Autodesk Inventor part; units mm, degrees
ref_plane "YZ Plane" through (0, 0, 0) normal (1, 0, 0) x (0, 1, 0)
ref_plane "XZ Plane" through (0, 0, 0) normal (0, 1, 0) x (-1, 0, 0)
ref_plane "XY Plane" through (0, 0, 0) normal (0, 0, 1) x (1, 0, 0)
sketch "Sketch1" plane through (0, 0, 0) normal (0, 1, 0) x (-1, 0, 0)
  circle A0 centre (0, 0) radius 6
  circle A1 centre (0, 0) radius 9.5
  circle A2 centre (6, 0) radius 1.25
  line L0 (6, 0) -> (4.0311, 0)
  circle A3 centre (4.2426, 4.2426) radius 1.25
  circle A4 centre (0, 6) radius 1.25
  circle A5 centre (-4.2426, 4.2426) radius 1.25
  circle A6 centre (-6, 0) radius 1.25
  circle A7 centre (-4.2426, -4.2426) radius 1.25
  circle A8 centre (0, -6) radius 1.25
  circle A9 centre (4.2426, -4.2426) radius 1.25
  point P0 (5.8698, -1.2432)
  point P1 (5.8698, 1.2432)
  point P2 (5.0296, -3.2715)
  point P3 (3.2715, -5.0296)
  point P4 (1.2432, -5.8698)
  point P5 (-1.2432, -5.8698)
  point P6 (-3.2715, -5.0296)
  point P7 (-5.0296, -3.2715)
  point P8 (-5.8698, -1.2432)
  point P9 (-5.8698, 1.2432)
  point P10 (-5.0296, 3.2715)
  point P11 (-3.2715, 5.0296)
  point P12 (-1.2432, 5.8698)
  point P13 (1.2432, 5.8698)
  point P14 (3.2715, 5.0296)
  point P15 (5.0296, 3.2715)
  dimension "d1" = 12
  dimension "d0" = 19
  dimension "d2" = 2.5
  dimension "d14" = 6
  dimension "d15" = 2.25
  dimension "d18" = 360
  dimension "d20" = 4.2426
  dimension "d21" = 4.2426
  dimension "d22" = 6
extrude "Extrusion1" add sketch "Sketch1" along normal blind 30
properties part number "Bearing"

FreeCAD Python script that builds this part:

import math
import FreeCAD as App
import Part
import Sketcher

V = App.Vector
Q = App.Units.Quantity

doc = App.newDocument("Part")
body = doc.addObject("PartDesign::Body", "Body")

sketch1 = doc.addObject("Sketcher::SketchObject", "Sketch")
body.addObject(sketch1)
sketch1.AttachmentSupport = (doc.XZ_Plane, [""])
sketch1.MapMode = "FlatFace"
sketch1.addGeometry(Part.Circle(V(0, 0, 0), V(0, 0, 1), 9.5), False)
sketch1.addGeometry(Part.ArcOfCircle(Part.Circle(V(0, 0, 0), V(0, 0, 1), 6), math.radians(147), math.radians(168)), False)
sketch1.addGeometry(Part.ArcOfCircle(Part.Circle(V(-6, 0, 0), V(0, 0, 1), 1.2), math.radians(84), math.radians(276)), False)
sketch1.addGeometry(Part.ArcOfCircle(Part.Circle(V(0, 0, 0), V(0, 0, 1), 6), math.radians(-168), math.radians(-147)), False)
sketch1.addGeometry(Part.ArcOfCircle(Part.Circle(V(-4.2, -4.2, 0), V(0, 0, 1), 1.2), math.radians(129), math.radians(321)), False)
sketch1.addGeometry(Part.ArcOfCircle(Part.Circle(V(0, 0, 0), V(0, 0, 1), 6), math.radians(-123), math.radians(-102)), False)
sketch1.addGeometry(Part.ArcOfCircle(Part.Circle(V(0, -6, 0), V(0, 0, 1), 1.2), math.radians(174), math.radians(366)), False)
sketch1.addGeometry(Part.ArcOfCircle(Part.Circle(V(0, 0, 0), V(0, 0, 1), 6), math.radians(-78), math.radians(-57)), False)
sketch1.addGeometry(Part.ArcOfCircle(Part.Circle(V(4.2, -4.2, 0), V(0, 0, 1), 1.2), math.radians(-141), math.radians(51)), False)
sketch1.addGeometry(Part.ArcOfCircle(Part.Circle(V(0, 0, 0), V(0, 0, 1), 6), math.radians(-33), math.radians(-12)), False)
sketch1.addGeometry(Part.ArcOfCircle(Part.Circle(V(6, 0, 0), V(0, 0, 1), 1.2), math.radians(-96), math.radians(96)), False)
sketch1.addGeometry(Part.ArcOfCircle(Part.Circle(V(0, 0, 0), V(0, 0, 1), 6), math.radians(12), math.radians(33)), False)
sketch1.addGeometry(Part.ArcOfCircle(Part.Circle(V(4.2, 4.2, 0), V(0, 0, 1), 1.2), math.radians(-51), math.radians(141)), False)
sketch1.addGeometry(Part.ArcOfCircle(Part.Circle(V(0, 0, 0), V(0, 0, 1), 6), math.radians(57), math.radians(78)), False)
sketch1.addGeometry(Part.ArcOfCircle(Part.Circle(V(0, 6, 0), V(0, 0, 1), 1.2), math.radians(-6), math.radians(186)), False)
sketch1.addGeometry(Part.ArcOfCircle(Part.Circle(V(0, 0, 0), V(0, 0, 1), 6), math.radians(102), math.radians(123)), False)
sketch1.addGeometry(Part.ArcOfCircle(Part.Circle(V(-4.2, 4.2, 0), V(0, 0, 1), 1.2), math.radians(39), math.radians(231)), False)
sketch1.addConstraint(Sketcher.Constraint("Coincident", 1, 2, 2, 1))
sketch1.addConstraint(Sketcher.Constraint("Coincident", 2, 2, 3, 1))
sketch1.addConstraint(Sketcher.Constraint("Coincident", 3, 2, 4, 1))
sketch1.addConstraint(Sketcher.Constraint("Coincident", 4, 2, 5, 1))
sketch1.addConstraint(Sketcher.Constraint("Coincident", 5, 2, 6, 1))
sketch1.addConstraint(Sketcher.Constraint("Coincident", 6, 2, 7, 1))
sketch1.addConstraint(Sketcher.Constraint("Coincident", 7, 2, 8, 1))
sketch1.addConstraint(Sketcher.Constraint("Coincident", 8, 2, 9, 1))
sketch1.addConstraint(Sketcher.Constraint("Coincident", 9, 2, 10, 1))
sketch1.addConstraint(Sketcher.Constraint("Coincident", 10, 2, 11, 1))
sketch1.addConstraint(Sketcher.Constraint("Coincident", 11, 2, 12, 1))
sketch1.addConstraint(Sketcher.Constraint("Coincident", 12, 2, 13, 1))
sketch1.addConstraint(Sketcher.Constraint("Coincident", 13, 2, 14, 1))
sketch1.addConstraint(Sketcher.Constraint("Coincident", 14, 2, 15, 1))
sketch1.addConstraint(Sketcher.Constraint("Coincident", 15, 2, 16, 1))
sketch1.addConstraint(Sketcher.Constraint("Coincident", 16, 2, 1, 1))
sketch1.addConstraint(Sketcher.Constraint("Coincident", 0, 3, -1, 1))
sketch1.addConstraint(Sketcher.Constraint("Coincident", 1, 3, -1, 1))
sketch1.addConstraint(Sketcher.Constraint("Coincident", 3, 3, -1, 1))
sketch1.addConstraint(Sketcher.Constraint("Coincident", 5, 3, -1, 1))
sketch1.addConstraint(Sketcher.Constraint("Coincident", 7, 3, -1, 1))
sketch1.addConstraint(Sketcher.Constraint("Coincident", 9, 3, -1, 1))
sketch1.addConstraint(Sketcher.Constraint("Coincident", 11, 3, -1, 1))
sketch1.addConstraint(Sketcher.Constraint("Coincident", 13, 3, -1, 1))
sketch1.addConstraint(Sketcher.Constraint("Coincident", 15, 3, -1, 1))
sketch1.addConstraint(Sketcher.Constraint("Equal", 1, 3))
sketch1.addConstraint(Sketcher.Constraint("Equal", 2, 4))
sketch1.addConstraint(Sketcher.Constraint("Equal", 3, 5))
sketch1.addConstraint(Sketcher.Constraint("Equal", 4, 6))
sketch1.addConstraint(Sketcher.Constraint("Equal", 5, 7))
sketch1.addConstraint(Sketcher.Constraint("Equal", 6, 8))
sketch1.addConstraint(Sketcher.Constraint("Equal", 7, 9))
sketch1.addConstraint(Sketcher.Constraint("Equal", 8, 10))
sketch1.addConstraint(Sketcher.Constraint("Equal", 9, 11))
sketch1.addConstraint(Sketcher.Constraint("Equal", 10, 12))
sketch1.addConstraint(Sketcher.Constraint("Equal", 11, 13))
sketch1.addConstraint(Sketcher.Constraint("Equal", 12, 14))
sketch1.addConstraint(Sketcher.Constraint("Equal", 13, 15))
sketch1.addConstraint(Sketcher.Constraint("Equal", 14, 16))
sketch1.addConstraint(Sketcher.Constraint("Symmetric", 2, 3, 10, 3, -1, 1))
sketch1.addConstraint(Sketcher.Constraint("Symmetric", 4, 3, 12, 3, -1, 1))
sketch1.addConstraint(Sketcher.Constraint("Symmetric", 6, 3, 14, 3, -1, 1))
sketch1.addConstraint(Sketcher.Constraint("Symmetric", 8, 3, 16, 3, -1, 1))
sketch1.addConstraint(Sketcher.Constraint("Symmetric", 4, 3, 8, 3, -2))
sketch1.addConstraint(Sketcher.Constraint("PointOnObject", 2, 3, -1))
sketch1.addConstraint(Sketcher.Constraint("PointOnObject", 6, 3, -2))
sketch1.addConstraint(Sketcher.Constraint("Diameter", 0, Q("19 mm")))
sketch1.addConstraint(Sketcher.Constraint("Radius", 1, Q("6 mm")))
sketch1.addConstraint(Sketcher.Constraint("Radius", 2, Q("1.25 mm")))
sketch1.addConstraint(Sketcher.Constraint("DistanceX", 2, 3, -1, 1, Q("6 mm")))
sketch1.addConstraint(Sketcher.Constraint("DistanceY", 6, 3, -1, 1, Q("6 mm")))
sketch1.addConstraint(Sketcher.Constraint("DistanceX", 4, 3, -1, 1, Q("4.2426 mm")))
sketch1.addConstraint(Sketcher.Constraint("DistanceY", 4, 3, -1, 1, Q("4.2426 mm")))
pad1 = doc.addObject("PartDesign::Pad", "Pad")
body.addObject(pad1)
pad1.Profile = sketch1
pad1.Length = 30
pad1.Reversed = True

doc.recompute()
